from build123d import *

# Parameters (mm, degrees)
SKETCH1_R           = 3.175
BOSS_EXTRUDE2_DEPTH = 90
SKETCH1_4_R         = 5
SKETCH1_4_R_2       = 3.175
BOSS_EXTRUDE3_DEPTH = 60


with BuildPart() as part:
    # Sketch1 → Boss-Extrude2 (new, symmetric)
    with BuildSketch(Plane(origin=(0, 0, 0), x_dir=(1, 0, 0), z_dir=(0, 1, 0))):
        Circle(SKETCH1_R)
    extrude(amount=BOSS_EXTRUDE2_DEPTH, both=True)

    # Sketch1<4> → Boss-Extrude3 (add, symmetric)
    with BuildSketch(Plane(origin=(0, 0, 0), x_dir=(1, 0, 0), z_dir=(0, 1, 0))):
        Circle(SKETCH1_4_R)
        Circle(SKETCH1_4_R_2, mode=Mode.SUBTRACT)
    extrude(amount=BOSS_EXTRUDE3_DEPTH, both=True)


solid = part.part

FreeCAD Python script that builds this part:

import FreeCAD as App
import Part
import Sketcher
Q = App.Units.Quantity

doc = App.newDocument("Part")
body = doc.addObject("PartDesign::Body", "Body")

# Sketch on XZ plane
sketch1 = body.newObject("Sketcher::SketchObject", "Sketch")
sketch1.AttachmentSupport = (doc.getObject("XZ_Plane"), [""])
sketch1.MapMode = "FlatFace"
sketch1.addGeometry(Part.Circle(App.Vector(0, 0, 0), App.Vector(0, 0, 1), 3.2), False)
sketch1.addConstraint(Sketcher.Constraint("Coincident", 0, 3, -1, 1))
sketch1.addConstraint(Sketcher.Constraint("Diameter", 0, Q("6.35 mm")))
pad1 = body.newObject("PartDesign::Pad", "Pad")
pad1.Profile = sketch1
pad1.Length = 180
pad1.Midplane = True

# Sketch on XZ plane
sketch2 = body.newObject("Sketcher::SketchObject", "Sketch001")
sketch2.AttachmentSupport = (doc.getObject("XZ_Plane"), [""])
sketch2.MapMode = "FlatFace"
sketch2.addGeometry(Part.Circle(App.Vector(0, 0, 0), App.Vector(0, 0, 1), 5), False)
sketch2.addGeometry(Part.Circle(App.Vector(0, 0, 0), App.Vector(0, 0, 1), 3.2), False)
sketch2.addConstraint(Sketcher.Constraint("Coincident", 0, 3, -1, 1))
sketch2.addConstraint(Sketcher.Constraint("Coincident", 1, 3, -1, 1))
sketch2.addConstraint(Sketcher.Constraint("Diameter", 0, Q("10 mm")))
sketch2.addConstraint(Sketcher.Constraint("Diameter", 1, Q("6.35 mm")))
pad2 = body.newObject("PartDesign::Pad", "Pad001")
pad2.Profile = sketch2
pad2.Length = 120
pad2.Midplane = True

doc.recompute()
